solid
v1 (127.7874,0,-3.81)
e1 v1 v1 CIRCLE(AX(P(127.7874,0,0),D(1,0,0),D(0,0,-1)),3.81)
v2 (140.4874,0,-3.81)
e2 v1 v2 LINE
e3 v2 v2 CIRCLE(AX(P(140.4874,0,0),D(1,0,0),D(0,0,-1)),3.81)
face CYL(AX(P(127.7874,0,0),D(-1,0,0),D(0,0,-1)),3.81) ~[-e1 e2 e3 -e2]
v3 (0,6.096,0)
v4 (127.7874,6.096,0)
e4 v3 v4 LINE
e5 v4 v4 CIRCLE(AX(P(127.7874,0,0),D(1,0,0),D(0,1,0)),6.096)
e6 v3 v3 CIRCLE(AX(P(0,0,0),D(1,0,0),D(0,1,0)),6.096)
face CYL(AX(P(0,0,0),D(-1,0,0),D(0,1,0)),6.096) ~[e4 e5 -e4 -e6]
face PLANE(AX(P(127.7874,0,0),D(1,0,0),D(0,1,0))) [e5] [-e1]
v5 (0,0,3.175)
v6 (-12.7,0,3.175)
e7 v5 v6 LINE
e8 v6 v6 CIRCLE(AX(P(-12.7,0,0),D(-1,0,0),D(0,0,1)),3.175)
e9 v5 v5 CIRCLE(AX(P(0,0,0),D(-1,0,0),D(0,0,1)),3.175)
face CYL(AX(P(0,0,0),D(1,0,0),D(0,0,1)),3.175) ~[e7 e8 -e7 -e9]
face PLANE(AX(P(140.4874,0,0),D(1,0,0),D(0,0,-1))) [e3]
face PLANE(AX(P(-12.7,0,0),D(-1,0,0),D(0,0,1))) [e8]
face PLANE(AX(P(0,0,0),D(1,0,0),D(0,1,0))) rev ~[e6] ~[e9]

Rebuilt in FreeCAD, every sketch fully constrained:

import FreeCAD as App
import Part
import Sketcher
Q = App.Units.Quantity

doc = App.newDocument("Part")
body = doc.addObject("PartDesign::Body", "Body")

# Sketch on YZ plane
sketch1 = body.newObject("Sketcher::SketchObject", "Sketch")
sketch1.AttachmentSupport = (doc.getObject("YZ_Plane"), [""])
sketch1.MapMode = "FlatFace"
sketch1.addGeometry(Part.Circle(App.Vector(0, 0, 0), App.Vector(0, 0, 1), 6), False)
sketch1.addConstraint([
    Sketcher.Constraint("Coincident", 0, 3, -1, 1),
    Sketcher.Constraint("Diameter", 0, Q("0.48 in")),
])
pad1 = body.newObject("PartDesign::Pad", "Pad")
pad1.Profile = sketch1
pad1.Length = Q("5.031 in")

# Sketch on YZ plane
sketch2 = body.newObject("Sketcher::SketchObject", "Sketch001")
sketch2.AttachmentSupport = (doc.getObject("YZ_Plane"), [""])
sketch2.MapMode = "FlatFace"
sketch2.addGeometry(Part.Circle(App.Vector(0, 0, 0), App.Vector(0, 0, 1), 3.2), False)
sketch2.addConstraint([
    Sketcher.Constraint("Coincident", 0, 3, -1, 1),
    Sketcher.Constraint("Diameter", 0, Q("0.25 in")),
])
pad2 = body.newObject("PartDesign::Pad", "Pad001")
pad2.Profile = sketch2
pad2.Length = Q("0.5 in")
pad2.Reversed = True

# Sketch on YZ plane
sketch3 = body.newObject("Sketcher::SketchObject", "Sketch002")
sketch3.AttachmentSupport = (doc.getObject("YZ_Plane"), [""])
sketch3.MapMode = "FlatFace"
sketch3.AttachmentOffset = App.Placement(App.Vector(0, 0, 5.031 * 25.4), App.Rotation())
sketch3.addGeometry(Part.Circle(App.Vector(0, 0, 0), App.Vector(0, 0, 1), 3.8), False)
sketch3.addConstraint([
    Sketcher.Constraint("Coincident", 0, 3, -1, 1),
    Sketcher.Constraint("Diameter", 0, Q("0.3 in")),
])
pad3 = body.newObject("PartDesign::Pad", "Pad002")
pad3.Profile = sketch3
pad3.Length = Q("0.5 in")

doc.recompute()
